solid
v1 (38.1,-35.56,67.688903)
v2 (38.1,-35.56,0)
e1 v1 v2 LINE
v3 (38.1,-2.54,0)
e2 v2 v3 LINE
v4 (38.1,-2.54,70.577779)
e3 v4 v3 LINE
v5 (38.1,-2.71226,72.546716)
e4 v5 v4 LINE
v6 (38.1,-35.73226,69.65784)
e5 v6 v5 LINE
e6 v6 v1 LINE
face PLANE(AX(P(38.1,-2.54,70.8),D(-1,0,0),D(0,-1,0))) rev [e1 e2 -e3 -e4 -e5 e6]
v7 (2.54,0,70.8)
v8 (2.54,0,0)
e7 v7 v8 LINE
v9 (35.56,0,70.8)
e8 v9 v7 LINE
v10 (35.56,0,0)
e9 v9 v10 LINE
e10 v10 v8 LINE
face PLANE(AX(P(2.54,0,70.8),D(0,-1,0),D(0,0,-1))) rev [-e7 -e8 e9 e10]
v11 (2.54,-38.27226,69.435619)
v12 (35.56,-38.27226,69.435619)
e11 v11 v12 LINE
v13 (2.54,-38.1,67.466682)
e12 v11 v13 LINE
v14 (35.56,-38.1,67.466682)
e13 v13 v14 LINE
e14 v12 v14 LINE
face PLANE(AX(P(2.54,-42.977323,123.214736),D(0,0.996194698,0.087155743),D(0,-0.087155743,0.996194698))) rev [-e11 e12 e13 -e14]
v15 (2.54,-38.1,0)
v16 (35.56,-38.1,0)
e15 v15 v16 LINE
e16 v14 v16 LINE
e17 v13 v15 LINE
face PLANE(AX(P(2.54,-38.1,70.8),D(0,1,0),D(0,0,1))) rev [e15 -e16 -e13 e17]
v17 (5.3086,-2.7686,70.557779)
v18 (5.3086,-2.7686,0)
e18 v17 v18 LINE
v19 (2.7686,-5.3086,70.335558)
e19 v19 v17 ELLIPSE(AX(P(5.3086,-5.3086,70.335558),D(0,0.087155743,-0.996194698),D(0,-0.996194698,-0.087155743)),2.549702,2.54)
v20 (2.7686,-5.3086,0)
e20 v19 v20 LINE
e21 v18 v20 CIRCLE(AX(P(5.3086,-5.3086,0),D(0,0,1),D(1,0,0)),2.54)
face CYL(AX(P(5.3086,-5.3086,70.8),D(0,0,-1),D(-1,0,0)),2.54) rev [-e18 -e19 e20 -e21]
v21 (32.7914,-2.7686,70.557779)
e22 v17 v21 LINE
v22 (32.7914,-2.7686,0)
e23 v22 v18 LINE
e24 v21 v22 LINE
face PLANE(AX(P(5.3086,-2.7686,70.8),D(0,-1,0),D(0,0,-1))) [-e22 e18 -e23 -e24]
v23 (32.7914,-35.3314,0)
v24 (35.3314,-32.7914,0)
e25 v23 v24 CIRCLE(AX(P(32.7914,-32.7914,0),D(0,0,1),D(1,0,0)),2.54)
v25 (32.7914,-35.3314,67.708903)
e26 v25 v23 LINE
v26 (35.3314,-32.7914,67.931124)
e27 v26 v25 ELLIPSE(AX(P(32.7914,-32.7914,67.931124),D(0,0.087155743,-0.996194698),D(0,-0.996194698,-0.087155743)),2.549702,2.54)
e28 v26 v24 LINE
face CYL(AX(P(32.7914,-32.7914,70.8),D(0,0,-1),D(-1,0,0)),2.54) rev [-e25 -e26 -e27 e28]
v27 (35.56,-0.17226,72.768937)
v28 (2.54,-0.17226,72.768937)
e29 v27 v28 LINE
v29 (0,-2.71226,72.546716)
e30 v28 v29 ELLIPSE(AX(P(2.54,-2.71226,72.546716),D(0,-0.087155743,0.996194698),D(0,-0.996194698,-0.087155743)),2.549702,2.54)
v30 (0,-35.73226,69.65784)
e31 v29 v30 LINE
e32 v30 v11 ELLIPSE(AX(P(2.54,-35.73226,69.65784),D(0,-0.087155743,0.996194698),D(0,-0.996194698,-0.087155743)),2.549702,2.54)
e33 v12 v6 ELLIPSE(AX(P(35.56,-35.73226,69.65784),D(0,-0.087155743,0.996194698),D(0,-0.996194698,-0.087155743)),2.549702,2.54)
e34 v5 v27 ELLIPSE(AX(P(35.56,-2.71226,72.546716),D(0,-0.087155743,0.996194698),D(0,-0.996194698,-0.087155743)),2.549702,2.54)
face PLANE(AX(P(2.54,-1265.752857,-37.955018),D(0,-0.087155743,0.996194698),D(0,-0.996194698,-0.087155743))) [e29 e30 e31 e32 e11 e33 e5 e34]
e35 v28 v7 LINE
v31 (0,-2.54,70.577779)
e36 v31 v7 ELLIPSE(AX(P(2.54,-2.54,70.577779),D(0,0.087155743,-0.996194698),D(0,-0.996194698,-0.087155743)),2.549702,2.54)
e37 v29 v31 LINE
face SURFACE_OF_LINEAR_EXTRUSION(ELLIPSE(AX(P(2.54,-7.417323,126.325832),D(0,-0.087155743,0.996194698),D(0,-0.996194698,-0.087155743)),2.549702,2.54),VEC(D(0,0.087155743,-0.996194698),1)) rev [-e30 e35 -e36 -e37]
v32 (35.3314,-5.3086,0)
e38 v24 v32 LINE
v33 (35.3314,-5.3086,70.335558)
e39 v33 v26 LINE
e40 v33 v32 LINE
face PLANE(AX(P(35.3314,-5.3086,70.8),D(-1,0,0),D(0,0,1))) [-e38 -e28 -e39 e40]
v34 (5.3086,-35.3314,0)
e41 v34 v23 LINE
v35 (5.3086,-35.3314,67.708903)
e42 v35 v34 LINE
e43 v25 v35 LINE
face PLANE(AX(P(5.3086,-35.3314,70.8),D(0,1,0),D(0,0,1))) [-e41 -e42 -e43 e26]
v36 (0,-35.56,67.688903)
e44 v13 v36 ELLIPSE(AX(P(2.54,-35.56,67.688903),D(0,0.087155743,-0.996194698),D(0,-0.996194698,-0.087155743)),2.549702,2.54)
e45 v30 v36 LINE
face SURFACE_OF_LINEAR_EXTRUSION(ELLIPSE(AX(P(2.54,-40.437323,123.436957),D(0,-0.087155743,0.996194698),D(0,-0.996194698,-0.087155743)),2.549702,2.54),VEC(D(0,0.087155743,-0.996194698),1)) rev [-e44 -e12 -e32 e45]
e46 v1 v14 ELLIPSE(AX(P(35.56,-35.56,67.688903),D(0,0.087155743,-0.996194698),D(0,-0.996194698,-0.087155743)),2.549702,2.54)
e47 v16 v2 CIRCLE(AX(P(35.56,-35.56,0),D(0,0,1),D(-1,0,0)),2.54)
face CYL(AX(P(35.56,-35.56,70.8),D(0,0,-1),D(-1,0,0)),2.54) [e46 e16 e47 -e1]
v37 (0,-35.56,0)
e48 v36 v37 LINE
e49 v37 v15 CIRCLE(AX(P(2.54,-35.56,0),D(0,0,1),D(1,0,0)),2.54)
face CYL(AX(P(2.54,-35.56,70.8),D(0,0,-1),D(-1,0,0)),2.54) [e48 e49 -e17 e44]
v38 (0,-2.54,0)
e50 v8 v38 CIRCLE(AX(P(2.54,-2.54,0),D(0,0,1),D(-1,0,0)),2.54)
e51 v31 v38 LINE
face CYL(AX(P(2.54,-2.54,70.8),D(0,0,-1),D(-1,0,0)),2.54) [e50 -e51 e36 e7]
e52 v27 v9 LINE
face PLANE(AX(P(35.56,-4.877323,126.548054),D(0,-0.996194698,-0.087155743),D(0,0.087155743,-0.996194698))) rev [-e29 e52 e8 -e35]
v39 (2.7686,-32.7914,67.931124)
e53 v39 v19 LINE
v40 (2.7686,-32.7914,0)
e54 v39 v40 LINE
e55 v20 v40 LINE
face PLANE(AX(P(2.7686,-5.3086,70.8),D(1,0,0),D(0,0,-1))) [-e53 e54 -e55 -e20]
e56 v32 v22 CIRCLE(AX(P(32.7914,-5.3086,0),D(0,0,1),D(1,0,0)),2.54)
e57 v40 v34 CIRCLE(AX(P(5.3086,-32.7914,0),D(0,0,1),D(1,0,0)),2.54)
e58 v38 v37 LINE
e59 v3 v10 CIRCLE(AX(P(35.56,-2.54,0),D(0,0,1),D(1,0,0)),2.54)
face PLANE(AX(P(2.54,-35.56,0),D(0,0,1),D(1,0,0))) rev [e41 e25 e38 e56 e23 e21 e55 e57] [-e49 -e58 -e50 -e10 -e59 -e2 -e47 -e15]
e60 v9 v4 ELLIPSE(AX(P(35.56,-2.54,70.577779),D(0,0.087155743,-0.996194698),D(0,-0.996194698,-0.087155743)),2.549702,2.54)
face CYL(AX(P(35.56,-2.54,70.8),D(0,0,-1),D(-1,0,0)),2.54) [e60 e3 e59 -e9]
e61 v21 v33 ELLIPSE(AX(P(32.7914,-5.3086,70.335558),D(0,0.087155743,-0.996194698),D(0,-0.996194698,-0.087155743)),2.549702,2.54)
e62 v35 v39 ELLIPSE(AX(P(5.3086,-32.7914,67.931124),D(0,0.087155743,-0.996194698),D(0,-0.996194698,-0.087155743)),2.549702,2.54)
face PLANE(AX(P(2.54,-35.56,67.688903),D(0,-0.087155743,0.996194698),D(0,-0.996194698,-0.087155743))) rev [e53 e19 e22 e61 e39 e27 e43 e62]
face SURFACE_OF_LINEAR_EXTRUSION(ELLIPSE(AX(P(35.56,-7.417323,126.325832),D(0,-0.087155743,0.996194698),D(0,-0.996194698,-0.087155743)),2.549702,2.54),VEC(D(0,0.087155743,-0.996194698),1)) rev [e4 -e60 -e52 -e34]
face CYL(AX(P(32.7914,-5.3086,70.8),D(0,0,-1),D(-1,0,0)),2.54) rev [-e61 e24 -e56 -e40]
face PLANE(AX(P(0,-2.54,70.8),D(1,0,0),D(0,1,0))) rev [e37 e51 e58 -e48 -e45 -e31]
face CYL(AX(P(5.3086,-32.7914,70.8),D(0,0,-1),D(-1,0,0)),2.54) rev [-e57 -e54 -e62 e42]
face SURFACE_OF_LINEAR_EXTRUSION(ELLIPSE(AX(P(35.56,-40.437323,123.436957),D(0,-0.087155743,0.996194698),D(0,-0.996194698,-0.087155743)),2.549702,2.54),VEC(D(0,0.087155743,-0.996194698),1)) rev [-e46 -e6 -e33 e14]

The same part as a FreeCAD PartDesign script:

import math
import FreeCAD as App
import Part
import Sketcher

V = App.Vector
Q = App.Units.Quantity


def add_polygon(sketch, points):
    """Adds a closed chain of lines whose ends are joined by coincident constraints."""
    first, n = sketch.GeometryCount, len(points)
    for a, b in zip(points, points[1:] + points[:1]):
        sketch.addGeometry(Part.LineSegment(App.Vector(*a, 0), App.Vector(*b, 0)), False)
    for i in range(n):
        sketch.addConstraint(Sketcher.Constraint("Coincident", first + i, 2, first + (i + 1) % n, 1))

doc = App.newDocument("Part")
params = doc.addObject("Spreadsheet::Sheet", "Params")
for row, (alias, value) in enumerate([
    ("sketch1_radius", "0.1 in"),
    ("sketch1_width", "1.3 in"),
    ("sketch1_width2", "1.082 in"),
    ("pad1_length", "70.8 mm"),
    ("sketch2_width", "1.5 in"),
    ("pad2_length", "1.976458 mm"),
], start=1):
    params.set(f"A{row}", alias)
    params.set(f"B{row}", "=" + value)
    params.setAlias(f"B{row}", alias)

body = doc.addObject("PartDesign::Body", "Body")

sketch1 = doc.addObject("Sketcher::SketchObject", "Sketch")
body.addObject(sketch1)
sketch1.AttachmentSupport = (doc.XY_Plane, [""])
sketch1.MapMode = "FlatFace"
sketch1.addGeometry(Part.LineSegment(V(35.6, 0, 0), V(2.5, 0, 0)), False)
sketch1.addGeometry(Part.ArcOfCircle(Part.Circle(V(2.5, -2.5, 0), V(0, 0, 1), 2.5), math.radians(90), math.radians(180)), False)
sketch1.addGeometry(Part.LineSegment(V(0, -2.5, 0), V(0, -35.6, 0)), False)
sketch1.addGeometry(Part.ArcOfCircle(Part.Circle(V(2.5, -35.6, 0), V(0, 0, 1), 2.5), math.radians(-180), math.radians(-90)), False)
sketch1.addGeometry(Part.LineSegment(V(2.5, -38.1, 0), V(35.6, -38.1, 0)), False)
sketch1.addGeometry(Part.ArcOfCircle(Part.Circle(V(35.6, -35.6, 0), V(0, 0, 1), 2.5), math.radians(-90), math.radians(0)), False)
sketch1.addGeometry(Part.LineSegment(V(38.1, -35.6, 0), V(38.1, -2.5, 0)), False)
sketch1.addGeometry(Part.ArcOfCircle(Part.Circle(V(35.6, -2.5, 0), V(0, 0, 1), 2.5), math.radians(0), math.radians(90)), False)
sketch1.addGeometry(Part.LineSegment(V(5.3, -2.8, 0), V(32.8, -2.8, 0)), False)
sketch1.addGeometry(Part.ArcOfCircle(Part.Circle(V(32.8, -5.3, 0), V(0, 0, 1), 2.5), math.radians(0), math.radians(90)), False)
sketch1.addGeometry(Part.LineSegment(V(35.3, -5.3, 0), V(35.3, -32.8, 0)), False)
sketch1.addGeometry(Part.ArcOfCircle(Part.Circle(V(32.8, -32.8, 0), V(0, 0, 1), 2.5), math.radians(-90), math.radians(0)), False)
sketch1.addGeometry(Part.LineSegment(V(32.8, -35.3, 0), V(5.3, -35.3, 0)), False)
sketch1.addGeometry(Part.ArcOfCircle(Part.Circle(V(5.3, -32.8, 0), V(0, 0, 1), 2.5), math.radians(-180), math.radians(-90)), False)
sketch1.addGeometry(Part.LineSegment(V(2.8, -32.8, 0), V(2.8, -5.3, 0)), False)
sketch1.addGeometry(Part.ArcOfCircle(Part.Circle(V(5.3, -5.3, 0), V(0, 0, 1), 2.5), math.radians(90), math.radians(180)), False)
sketch1.addConstraint(Sketcher.Constraint("Tangent", 0, 2, 1, 1))
sketch1.addConstraint(Sketcher.Constraint("Tangent", 1, 2, 2, 1))
sketch1.addConstraint(Sketcher.Constraint("Tangent", 2, 2, 3, 1))
sketch1.addConstraint(Sketcher.Constraint("Tangent", 3, 2, 4, 1))
sketch1.addConstraint(Sketcher.Constraint("Tangent", 4, 2, 5, 1))
sketch1.addConstraint(Sketcher.Constraint("Tangent", 5, 2, 6, 1))
sketch1.addConstraint(Sketcher.Constraint("Tangent", 6, 2, 7, 1))
sketch1.addConstraint(Sketcher.Constraint("Tangent", 7, 2, 0, 1))
sketch1.addConstraint(Sketcher.Constraint("Tangent", 8, 2, 9, 2))
sketch1.addConstraint(Sketcher.Constraint("Tangent", 9, 1, 10, 1))
sketch1.addConstraint(Sketcher.Constraint("Tangent", 10, 2, 11, 2))
sketch1.addConstraint(Sketcher.Constraint("Tangent", 11, 1, 12, 1))
sketch1.addConstraint(Sketcher.Constraint("Tangent", 12, 2, 13, 2))
sketch1.addConstraint(Sketcher.Constraint("Tangent", 13, 1, 14, 1))
sketch1.addConstraint(Sketcher.Constraint("Tangent", 14, 2, 15, 2))
sketch1.addConstraint(Sketcher.Constraint("Tangent", 15, 1, 8, 1))
sketch1.addConstraint(Sketcher.Constraint("Horizontal", 0))
sketch1.addConstraint(Sketcher.Constraint("Vertical", 2))
sketch1.addConstraint(Sketcher.Constraint("Horizontal", 4))
sketch1.addConstraint(Sketcher.Constraint("Vertical", 6))
sketch1.addConstraint(Sketcher.Constraint("Horizontal", 8))
sketch1.addConstraint(Sketcher.Constraint("Vertical", 10))
sketch1.addConstraint(Sketcher.Constraint("Horizontal", 12))
sketch1.addConstraint(Sketcher.Constraint("Vertical", 14))
sketch1.addConstraint(Sketcher.Constraint("Equal", 1, 3))
sketch1.addConstraint(Sketcher.Constraint("Equal", 3, 5))
sketch1.addConstraint(Sketcher.Constraint("Equal", 5, 7))
sketch1.addConstraint(Sketcher.Constraint("Equal", 7, 9))
sketch1.addConstraint(Sketcher.Constraint("Equal", 9, 11))
sketch1.addConstraint(Sketcher.Constraint("Equal", 11, 13))
sketch1.addConstraint(Sketcher.Constraint("Equal", 13, 15))
sketch1.addConstraint(Sketcher.Constraint("PointOnObject", 0, 2, -1))
sketch1.addConstraint(Sketcher.Constraint("PointOnObject", 1, 2, -2))
sketch1.addConstraint(Sketcher.Constraint("Equal", 4, 2))
sketch1.addConstraint(Sketcher.Constraint("Equal", 12, 10))
sketch1.addConstraint(Sketcher.Constraint("Radius", 1, Q("0.1 in")))
sketch1.addConstraint(Sketcher.Constraint("DistanceX", 0, 2, 0, 1, Q("1.3 in")))
sketch1.addConstraint(Sketcher.Constraint("DistanceX", 8, 1, 8, 2, Q("1.082 in")))
sketch1.addConstraint(Sketcher.Constraint("DistanceX", -1, 1, 9, 3, Q("1.291 in")))
sketch1.addConstraint(Sketcher.Constraint("DistanceY", 9, 3, -1, 1, Q("0.209 in")))
sketch1.setExpression("Constraints[35]", "Params.sketch1_radius")
sketch1.setExpression("Constraints[36]", "Params.sketch1_width")
sketch1.setExpression("Constraints[37]", "Params.sketch1_width2")
pad1 = doc.addObject("PartDesign::Pad", "Pad")
body.addObject(pad1)
pad1.Profile = sketch1
pad1.setExpression("Length", "Params.pad1_length")

sketch2 = doc.addObject("Sketcher::SketchObject", "Sketch001")
body.addObject(sketch2)
sketch2.AttachmentSupport = (doc.YZ_Plane, [""])
sketch2.MapMode = "FlatFace"
sketch2.AttachmentOffset = App.Placement(V(0, 0, 1.5 * 25.4), App.Rotation())
add_polygon(sketch2, [(-38.1, 67.5), (0, 70.8), (-38.1, 70.8)])
sketch2.addConstraint(Sketcher.Constraint("Horizontal", 1))
sketch2.addConstraint(Sketcher.Constraint("Vertical", 2))
sketch2.addConstraint(Sketcher.Constraint("PointOnObject", 0, 2, -2))
sketch2.addConstraint(Sketcher.Constraint("DistanceX", 1, 2, 1, 1, Q("1.5 in")))
sketch2.addConstraint(Sketcher.Constraint("Angle", 0, Q("5 deg")))
sketch2.addConstraint(Sketcher.Constraint("DistanceY", -1, 1, 0, 2, 70.8))
sketch2.setExpression("Constraints[6]", "Params.sketch2_width")
pocket1 = doc.addObject("PartDesign::Pocket", "Pocket")
body.addObject(pocket1)
pocket1.Profile = sketch2
pocket1.Type = "ThroughAll"

sketch3 = doc.addObject("Sketcher::SketchObject", "Sketch002")
body.addObject(sketch3)
sketch3.Placement = App.Placement(V(0, -6.147145, 70.262194), App.Rotation(V(1, 0, 0), V(0, 0.996194698, 0.087155743), V(0, -0.087155743, 0.996194698), "ZXY"))
sketch3.addGeometry(Part.LineSegment(V(2.54, -32.074909, 0), V(35.56, -32.074909, 0)), False)
sketch3.addGeometry(Part.BSplineCurve([V(35.56, -32.074909, 0), V(38.1, -32.074909, 0), V(38.1, -29.525207, 0)], [3, 3], [0, 1.570796327], False, 2, [1, 0.707106781, 1], False), False)
sketch3.addGeometry(Part.LineSegment(V(38.1, -29.525207, 0), V(38.1, 3.620924, 0)), False)
sketch3.addGeometry(Part.BSplineCurve([V(38.1, 3.620924, 0), V(38.1, 6.170627, 0), V(35.56, 6.170627, 0)], [3, 3], [1.570796327, 3.141592654], False, 2, [1, 0.707106781, 1], False), False)
sketch3.addGeometry(Part.LineSegment(V(35.56, 6.170627, 0), V(2.54, 6.170627, 0)), False)
sketch3.addGeometry(Part.BSplineCurve([V(2.54, 6.170627, 0), V(0, 6.170627, 0), V(0, 3.620924, 0)], [3, 3], [3.141592654, 4.71238898], False, 2, [1, 0.707106781, 1], False), False)
sketch3.addGeometry(Part.LineSegment(V(0, 3.620924, 0), V(0, -29.525207, 0)), False)
sketch3.addGeometry(Part.BSplineCurve([V(0, -29.525207, 0), V(0, -32.074909, 0), V(2.54, -32.074909, 0)], [3, 3], [4.71238898, 6.283185307], False, 2, [1, 0.707106781, 1], False), False)
sketch3.addConstraint(Sketcher.Constraint("Block", 1))
sketch3.addConstraint(Sketcher.Constraint("Block", 3))
sketch3.addConstraint(Sketcher.Constraint("Block", 5))
sketch3.addConstraint(Sketcher.Constraint("Block", 7))
sketch3.addConstraint(Sketcher.Constraint("Coincident", 0, 2, 1, 1))
sketch3.addConstraint(Sketcher.Constraint("Coincident", 1, 2, 2, 1))
sketch3.addConstraint(Sketcher.Constraint("Coincident", 2, 2, 3, 1))
sketch3.addConstraint(Sketcher.Constraint("Coincident", 3, 2, 4, 1))
sketch3.addConstraint(Sketcher.Constraint("Coincident", 4, 2, 5, 1))
sketch3.addConstraint(Sketcher.Constraint("Coincident", 5, 2, 6, 1))
sketch3.addConstraint(Sketcher.Constraint("Coincident", 6, 2, 7, 1))
sketch3.addConstraint(Sketcher.Constraint("Coincident", 7, 2, 0, 1))
pad2 = doc.addObject("PartDesign::Pad", "Pad001")
body.addObject(pad2)
pad2.Profile = sketch3
pad2.setExpression("Length", "Params.pad2_length")

doc.recompute()
